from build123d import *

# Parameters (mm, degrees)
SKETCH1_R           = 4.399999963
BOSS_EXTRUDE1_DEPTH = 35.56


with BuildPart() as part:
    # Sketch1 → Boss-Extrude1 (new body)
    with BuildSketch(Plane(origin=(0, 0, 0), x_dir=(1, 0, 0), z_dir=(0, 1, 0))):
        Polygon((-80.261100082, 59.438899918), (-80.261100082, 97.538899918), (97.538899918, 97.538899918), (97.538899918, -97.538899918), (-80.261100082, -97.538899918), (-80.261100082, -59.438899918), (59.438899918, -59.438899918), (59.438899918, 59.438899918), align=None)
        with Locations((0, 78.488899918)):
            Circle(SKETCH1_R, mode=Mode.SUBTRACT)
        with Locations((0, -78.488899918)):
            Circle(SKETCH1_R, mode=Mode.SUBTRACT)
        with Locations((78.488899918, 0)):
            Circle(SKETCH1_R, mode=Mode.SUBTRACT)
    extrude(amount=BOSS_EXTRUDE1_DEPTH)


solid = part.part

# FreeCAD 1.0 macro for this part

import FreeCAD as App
import Part
import Sketcher

V = App.Vector
Q = App.Units.Quantity


def add_polygon(sketch, points):
    """Adds a closed chain of lines whose ends are joined by coincident constraints."""
    first, n = sketch.GeometryCount, len(points)
    for a, b in zip(points, points[1:] + points[:1]):
        sketch.addGeometry(Part.LineSegment(App.Vector(*a, 0), App.Vector(*b, 0)), False)
    for i in range(n):
        sketch.addConstraint(Sketcher.Constraint("Coincident", first + i, 2, first + (i + 1) % n, 1))

doc = App.newDocument("Part")
body = doc.addObject("PartDesign::Body", "Body")

# Sketch on XZ plane
sketch1 = doc.addObject("Sketcher::SketchObject", "Sketch")
body.addObject(sketch1)
sketch1.AttachmentSupport = (doc.XZ_Plane, [""])
sketch1.MapMode = "FlatFace"
add_polygon(sketch1, [(-80.2611, -97.5389), (-80.2611, -59.4389), (59.4389, -59.4389), (59.4389, 59.4389), (-80.2611, 59.4389), (-80.2611, 97.5389), (97.5389, 97.5389), (97.5389, -97.5389)])  # lines 0-7
sketch1.addGeometry(Part.Circle(V(0, 78.4889, 0), V(0, 0, 1), 4.4), False)  # 8
sketch1.addGeometry(Part.Circle(V(78.4889, 0, 0), V(0, 0, 1), 4.4), False)  # 9
sketch1.addGeometry(Part.Circle(V(0, -78.4889, 0), V(0, 0, 1), 4.4), False)  # 10
sketch1.addConstraint(Sketcher.Constraint("Vertical", 0))
sketch1.addConstraint(Sketcher.Constraint("Horizontal", 1))
sketch1.addConstraint(Sketcher.Constraint("Vertical", 2))
sketch1.addConstraint(Sketcher.Constraint("Horizontal", 3))
sketch1.addConstraint(Sketcher.Constraint("Vertical", 4))
sketch1.addConstraint(Sketcher.Constraint("Horizontal", 5))
sketch1.addConstraint(Sketcher.Constraint("Vertical", 6))
sketch1.addConstraint(Sketcher.Constraint("Horizontal", 7))
sketch1.addConstraint(Sketcher.Constraint("Equal", 8, 9))
sketch1.addConstraint(Sketcher.Constraint("Equal", 9, 10))
sketch1.addConstraint(Sketcher.Constraint("Symmetric", 8, 3, 10, 3, -1, 1))
sketch1.addConstraint(Sketcher.Constraint("Symmetric", 0, 2, 3, 2, -1))
sketch1.addConstraint(Sketcher.Constraint("PointOnObject", 8, 3, -2))
sketch1.addConstraint(Sketcher.Constraint("PointOnObject", 9, 3, -1))
sketch1.addConstraint(Sketcher.Constraint("Equal", 0, 4))
sketch1.addConstraint(Sketcher.Constraint("DistanceX", 5, 1, 5, 2, Q("7 in")))
sketch1.addConstraint(Sketcher.Constraint("DistanceX", 1, 1, 1, 2, Q("5.5 in")))
sketch1.addConstraint(Sketcher.Constraint("DistanceY", 0, 1, 0, 2, Q("1.5 in")))
sketch1.addConstraint(Sketcher.Constraint("Diameter", 8, Q("8.8 mm")))
sketch1.addConstraint(Sketcher.Constraint("DistanceY", 10, 3, 0, 2, Q("0.75 in")))
sketch1.addConstraint(Sketcher.Constraint("DistanceX", 0, 2, 9, 3, Q("6.25 in")))
sketch1.addConstraint(Sketcher.Constraint("DistanceY", 2, 1, 2, 2, Q("118.8778 mm")))
sketch1.addConstraint(Sketcher.Constraint("DistanceX", -1, 1, 9, 3, Q("78.4889 mm")))
pad1 = doc.addObject("PartDesign::Pad", "Pad")
body.addObject(pad1)
pad1.Profile = sketch1
pad1.Length = Q("1.4 in")
pad1.Reversed = True

doc.recompute()
